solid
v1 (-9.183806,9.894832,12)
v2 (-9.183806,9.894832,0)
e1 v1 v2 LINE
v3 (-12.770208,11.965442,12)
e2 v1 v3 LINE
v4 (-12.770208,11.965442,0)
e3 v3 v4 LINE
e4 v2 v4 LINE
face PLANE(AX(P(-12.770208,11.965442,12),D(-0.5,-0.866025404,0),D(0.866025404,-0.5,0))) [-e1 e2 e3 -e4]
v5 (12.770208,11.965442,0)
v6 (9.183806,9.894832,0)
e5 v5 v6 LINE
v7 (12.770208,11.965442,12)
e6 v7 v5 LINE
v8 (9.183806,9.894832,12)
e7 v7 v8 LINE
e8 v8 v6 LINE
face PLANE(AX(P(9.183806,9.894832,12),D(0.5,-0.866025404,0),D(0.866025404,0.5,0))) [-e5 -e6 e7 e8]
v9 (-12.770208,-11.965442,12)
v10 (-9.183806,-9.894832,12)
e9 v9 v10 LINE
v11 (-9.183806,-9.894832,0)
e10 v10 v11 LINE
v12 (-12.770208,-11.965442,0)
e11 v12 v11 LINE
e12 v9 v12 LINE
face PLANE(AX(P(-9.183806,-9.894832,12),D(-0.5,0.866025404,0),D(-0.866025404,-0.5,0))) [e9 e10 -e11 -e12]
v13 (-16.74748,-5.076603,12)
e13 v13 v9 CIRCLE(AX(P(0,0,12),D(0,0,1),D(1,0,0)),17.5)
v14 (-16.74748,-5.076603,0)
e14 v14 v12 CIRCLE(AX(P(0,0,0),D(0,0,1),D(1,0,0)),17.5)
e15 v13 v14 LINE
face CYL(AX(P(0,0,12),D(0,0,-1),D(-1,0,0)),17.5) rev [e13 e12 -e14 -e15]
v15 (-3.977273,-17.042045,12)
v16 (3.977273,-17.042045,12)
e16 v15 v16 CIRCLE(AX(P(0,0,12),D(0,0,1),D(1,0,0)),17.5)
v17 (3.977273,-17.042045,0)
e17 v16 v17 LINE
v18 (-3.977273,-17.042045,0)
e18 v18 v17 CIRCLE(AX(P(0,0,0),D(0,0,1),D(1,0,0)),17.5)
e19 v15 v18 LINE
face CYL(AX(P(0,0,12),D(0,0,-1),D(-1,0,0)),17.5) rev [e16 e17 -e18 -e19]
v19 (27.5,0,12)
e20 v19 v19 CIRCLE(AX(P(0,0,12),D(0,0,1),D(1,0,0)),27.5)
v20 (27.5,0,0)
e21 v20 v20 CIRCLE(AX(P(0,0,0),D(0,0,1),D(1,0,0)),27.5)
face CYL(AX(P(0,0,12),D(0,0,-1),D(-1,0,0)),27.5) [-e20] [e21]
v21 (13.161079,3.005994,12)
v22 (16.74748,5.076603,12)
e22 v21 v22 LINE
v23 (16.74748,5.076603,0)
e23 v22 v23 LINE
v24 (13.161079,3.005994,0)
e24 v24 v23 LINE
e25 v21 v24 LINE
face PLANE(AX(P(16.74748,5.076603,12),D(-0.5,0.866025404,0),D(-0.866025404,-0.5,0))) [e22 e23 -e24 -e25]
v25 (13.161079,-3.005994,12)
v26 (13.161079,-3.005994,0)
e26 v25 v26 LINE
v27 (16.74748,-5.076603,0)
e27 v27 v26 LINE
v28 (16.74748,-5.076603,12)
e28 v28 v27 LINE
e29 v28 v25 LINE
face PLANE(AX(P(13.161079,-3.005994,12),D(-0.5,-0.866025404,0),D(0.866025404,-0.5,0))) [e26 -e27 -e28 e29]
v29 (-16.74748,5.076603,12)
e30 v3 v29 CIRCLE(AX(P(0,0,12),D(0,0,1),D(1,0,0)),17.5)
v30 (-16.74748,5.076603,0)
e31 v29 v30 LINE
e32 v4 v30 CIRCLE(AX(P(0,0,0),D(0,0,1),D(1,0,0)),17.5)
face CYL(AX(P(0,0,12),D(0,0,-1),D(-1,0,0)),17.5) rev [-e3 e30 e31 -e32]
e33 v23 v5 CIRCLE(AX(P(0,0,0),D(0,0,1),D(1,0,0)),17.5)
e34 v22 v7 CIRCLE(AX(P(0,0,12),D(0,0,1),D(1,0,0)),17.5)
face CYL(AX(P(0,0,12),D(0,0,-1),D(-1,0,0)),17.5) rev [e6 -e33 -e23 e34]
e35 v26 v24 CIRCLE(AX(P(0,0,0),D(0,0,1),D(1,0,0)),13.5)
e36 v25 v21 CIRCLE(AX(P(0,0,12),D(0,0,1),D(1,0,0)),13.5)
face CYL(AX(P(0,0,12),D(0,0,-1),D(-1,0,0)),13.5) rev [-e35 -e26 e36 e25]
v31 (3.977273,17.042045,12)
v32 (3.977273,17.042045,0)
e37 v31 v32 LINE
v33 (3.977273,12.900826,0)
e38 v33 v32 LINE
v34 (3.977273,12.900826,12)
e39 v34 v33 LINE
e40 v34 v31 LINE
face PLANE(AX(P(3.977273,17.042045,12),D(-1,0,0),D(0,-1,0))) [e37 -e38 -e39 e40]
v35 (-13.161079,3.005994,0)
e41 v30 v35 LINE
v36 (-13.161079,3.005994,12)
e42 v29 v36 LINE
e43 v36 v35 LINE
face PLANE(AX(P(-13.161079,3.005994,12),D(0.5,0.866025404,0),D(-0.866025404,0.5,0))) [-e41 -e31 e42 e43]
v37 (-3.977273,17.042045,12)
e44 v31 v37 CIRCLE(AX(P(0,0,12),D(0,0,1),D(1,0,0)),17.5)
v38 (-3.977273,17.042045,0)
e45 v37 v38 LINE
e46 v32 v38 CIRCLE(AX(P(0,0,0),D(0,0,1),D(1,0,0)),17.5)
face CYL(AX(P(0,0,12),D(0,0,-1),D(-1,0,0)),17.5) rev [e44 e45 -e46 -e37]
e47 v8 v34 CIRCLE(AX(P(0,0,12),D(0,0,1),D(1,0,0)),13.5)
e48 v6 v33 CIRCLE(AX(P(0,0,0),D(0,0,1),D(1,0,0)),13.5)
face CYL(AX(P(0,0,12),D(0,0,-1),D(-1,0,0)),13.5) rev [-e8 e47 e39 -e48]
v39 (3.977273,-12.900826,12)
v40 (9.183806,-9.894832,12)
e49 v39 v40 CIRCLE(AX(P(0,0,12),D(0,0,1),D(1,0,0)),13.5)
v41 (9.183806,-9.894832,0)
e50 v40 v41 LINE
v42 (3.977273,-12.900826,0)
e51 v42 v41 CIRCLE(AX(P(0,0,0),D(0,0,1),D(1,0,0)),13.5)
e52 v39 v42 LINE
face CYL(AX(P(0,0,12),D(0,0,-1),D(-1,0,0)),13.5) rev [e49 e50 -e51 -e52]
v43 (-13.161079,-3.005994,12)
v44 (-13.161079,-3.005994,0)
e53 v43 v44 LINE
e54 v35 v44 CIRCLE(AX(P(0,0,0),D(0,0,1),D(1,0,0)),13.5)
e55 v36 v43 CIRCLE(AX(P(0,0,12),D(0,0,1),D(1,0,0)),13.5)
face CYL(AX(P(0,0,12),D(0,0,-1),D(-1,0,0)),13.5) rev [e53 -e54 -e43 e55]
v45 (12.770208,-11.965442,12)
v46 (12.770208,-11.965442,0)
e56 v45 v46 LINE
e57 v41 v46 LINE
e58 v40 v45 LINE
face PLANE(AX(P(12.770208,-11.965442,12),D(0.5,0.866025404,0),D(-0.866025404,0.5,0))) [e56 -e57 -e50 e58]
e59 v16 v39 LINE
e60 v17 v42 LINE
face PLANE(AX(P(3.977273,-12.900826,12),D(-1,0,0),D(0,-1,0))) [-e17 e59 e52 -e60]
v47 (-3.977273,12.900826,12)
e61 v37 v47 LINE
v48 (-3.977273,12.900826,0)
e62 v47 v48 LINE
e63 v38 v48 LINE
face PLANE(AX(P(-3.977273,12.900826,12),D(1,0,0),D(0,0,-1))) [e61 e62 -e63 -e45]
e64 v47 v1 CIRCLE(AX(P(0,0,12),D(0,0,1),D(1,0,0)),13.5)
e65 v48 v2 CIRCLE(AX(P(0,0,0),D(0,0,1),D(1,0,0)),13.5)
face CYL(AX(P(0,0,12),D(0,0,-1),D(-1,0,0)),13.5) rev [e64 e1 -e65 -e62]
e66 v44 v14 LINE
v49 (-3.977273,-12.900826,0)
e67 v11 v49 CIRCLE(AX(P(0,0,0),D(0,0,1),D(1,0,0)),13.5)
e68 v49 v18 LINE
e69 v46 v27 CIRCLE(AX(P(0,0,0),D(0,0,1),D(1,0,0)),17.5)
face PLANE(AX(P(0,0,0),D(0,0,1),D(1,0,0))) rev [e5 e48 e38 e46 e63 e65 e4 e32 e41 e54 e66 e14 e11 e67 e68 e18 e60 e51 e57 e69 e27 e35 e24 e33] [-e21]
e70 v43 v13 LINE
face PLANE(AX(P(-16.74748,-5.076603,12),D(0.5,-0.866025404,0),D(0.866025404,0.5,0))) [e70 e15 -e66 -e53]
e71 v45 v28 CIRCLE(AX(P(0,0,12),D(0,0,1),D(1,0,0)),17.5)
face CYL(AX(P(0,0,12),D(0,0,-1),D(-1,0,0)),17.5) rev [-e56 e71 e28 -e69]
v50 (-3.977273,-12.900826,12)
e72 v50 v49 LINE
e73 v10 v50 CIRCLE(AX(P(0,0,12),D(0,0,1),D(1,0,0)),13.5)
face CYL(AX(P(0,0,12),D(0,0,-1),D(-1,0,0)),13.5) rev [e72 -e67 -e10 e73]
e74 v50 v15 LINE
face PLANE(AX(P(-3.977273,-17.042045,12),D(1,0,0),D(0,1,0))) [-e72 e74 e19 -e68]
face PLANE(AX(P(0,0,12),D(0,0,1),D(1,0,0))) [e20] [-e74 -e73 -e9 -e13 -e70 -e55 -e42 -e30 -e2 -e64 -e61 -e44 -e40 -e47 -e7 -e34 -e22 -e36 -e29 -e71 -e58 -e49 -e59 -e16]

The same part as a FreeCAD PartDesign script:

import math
import FreeCAD as App
import Part
import Sketcher
Q = App.Units.Quantity

doc = App.newDocument("Part")
body = doc.addObject("PartDesign::Body", "Body")

# Sketch on XY plane
sketch1 = doc.addObject("Sketcher::SketchObject", "Sketch")
body.addObject(sketch1)
sketch1.AttachmentSupport = (doc.XY_Plane, [""])
sketch1.MapMode = "FlatFace"
sketch1.addGeometry([
    Part.Circle(App.Vector(0, 0, 0), App.Vector(0, 0, 1), 27.5),  # 0
    Part.ArcOfCircle(Part.Circle(App.Vector(0, 0, 0), App.Vector(0, 0, 1), 13.5), math.radians(107), math.radians(133)),  # 1
    Part.LineSegment(App.Vector(-4, 12.9, 0), App.Vector(-4, 17, 0)),  # 2
    Part.ArcOfCircle(Part.Circle(App.Vector(0, 0, 0), App.Vector(0, 0, 1), 17.5), math.radians(77), math.radians(103)),  # 3
    Part.LineSegment(App.Vector(4, 17, 0), App.Vector(4, 12.9, 0)),  # 4
    Part.ArcOfCircle(Part.Circle(App.Vector(0, 0, 0), App.Vector(0, 0, 1), 13.5), math.radians(47), math.radians(73)),  # 5
    Part.LineSegment(App.Vector(9.2, 9.9, 0), App.Vector(12.8, 12, 0)),  # 6
    Part.ArcOfCircle(Part.Circle(App.Vector(0, 0, 0), App.Vector(0, 0, 1), 17.5), math.radians(17), math.radians(43)),  # 7
    Part.LineSegment(App.Vector(16.7, 5.1, 0), App.Vector(13.2, 3, 0)),  # 8
    Part.ArcOfCircle(Part.Circle(App.Vector(0, 0, 0), App.Vector(0, 0, 1), 13.5), math.radians(-13), math.radians(13)),  # 9
    Part.LineSegment(App.Vector(13.2, -3, 0), App.Vector(16.7, -5.1, 0)),  # 10
    Part.ArcOfCircle(Part.Circle(App.Vector(0, 0, 0), App.Vector(0, 0, 1), 17.5), math.radians(-43), math.radians(-17)),  # 11
    Part.LineSegment(App.Vector(12.8, -12, 0), App.Vector(9.2, -9.9, 0)),  # 12
    Part.ArcOfCircle(Part.Circle(App.Vector(0, 0, 0), App.Vector(0, 0, 1), 13.5), math.radians(-73), math.radians(-47)),  # 13
    Part.LineSegment(App.Vector(4, -12.9, 0), App.Vector(4, -17, 0)),  # 14
    Part.ArcOfCircle(Part.Circle(App.Vector(0, 0, 0), App.Vector(0, 0, 1), 17.5), math.radians(-103), math.radians(-77)),  # 15
    Part.LineSegment(App.Vector(-4, -17, 0), App.Vector(-4, -12.9, 0)),  # 16
    Part.ArcOfCircle(Part.Circle(App.Vector(0, 0, 0), App.Vector(0, 0, 1), 13.5), math.radians(-133), math.radians(-107)),  # 17
    Part.LineSegment(App.Vector(-9.2, -9.9, 0), App.Vector(-12.8, -12, 0)),  # 18
    Part.ArcOfCircle(Part.Circle(App.Vector(0, 0, 0), App.Vector(0, 0, 1), 17.5), math.radians(-163), math.radians(-137)),  # 19
    Part.LineSegment(App.Vector(-16.7, -5.1, 0), App.Vector(-13.2, -3, 0)),  # 20
    Part.ArcOfCircle(Part.Circle(App.Vector(0, 0, 0), App.Vector(0, 0, 1), 13.5), math.radians(167), math.radians(193)),  # 21
    Part.LineSegment(App.Vector(-13.2, 3, 0), App.Vector(-16.7, 5.1, 0)),  # 22
    Part.ArcOfCircle(Part.Circle(App.Vector(0, 0, 0), App.Vector(0, 0, 1), 17.5), math.radians(137), math.radians(163)),  # 23
    Part.LineSegment(App.Vector(-12.8, 12, 0), App.Vector(-9.2, 9.9, 0)),  # 24
], False)
sketch1.addConstraint([
    Sketcher.Constraint("Coincident", 1, 1, 2, 1),
    Sketcher.Constraint("Coincident", 2, 2, 3, 2),
    Sketcher.Constraint("Coincident", 3, 1, 4, 1),
    Sketcher.Constraint("Coincident", 4, 2, 5, 2),
    Sketcher.Constraint("Coincident", 5, 1, 6, 1),
    Sketcher.Constraint("Coincident", 6, 2, 7, 2),
    Sketcher.Constraint("Coincident", 7, 1, 8, 1),
    Sketcher.Constraint("Coincident", 8, 2, 9, 2),
    Sketcher.Constraint("Coincident", 9, 1, 10, 1),
    Sketcher.Constraint("Coincident", 10, 2, 11, 2),
    Sketcher.Constraint("Coincident", 11, 1, 12, 1),
    Sketcher.Constraint("Coincident", 12, 2, 13, 2),
    Sketcher.Constraint("Coincident", 13, 1, 14, 1),
    Sketcher.Constraint("Coincident", 14, 2, 15, 2),
    Sketcher.Constraint("Coincident", 15, 1, 16, 1),
    Sketcher.Constraint("Coincident", 16, 2, 17, 2),
    Sketcher.Constraint("Coincident", 17, 1, 18, 1),
    Sketcher.Constraint("Coincident", 18, 2, 19, 2),
    Sketcher.Constraint("Coincident", 19, 1, 20, 1),
    Sketcher.Constraint("Coincident", 20, 2, 21, 2),
    Sketcher.Constraint("Coincident", 21, 1, 22, 1),
    Sketcher.Constraint("Coincident", 22, 2, 23, 2),
    Sketcher.Constraint("Coincident", 23, 1, 24, 1),
    Sketcher.Constraint("Coincident", 24, 2, 1, 2),
    Sketcher.Constraint("Vertical", 2),
    Sketcher.Constraint("Vertical", 4),
    Sketcher.Constraint("Vertical", 14),
    Sketcher.Constraint("Vertical", 16),
    Sketcher.Constraint("Coincident", 0, 3, -1, 1),
    Sketcher.Constraint("Coincident", 1, 3, -1, 1),
    Sketcher.Constraint("Coincident", 3, 3, -1, 1),
    Sketcher.Constraint("Coincident", 5, 3, -1, 1),
    Sketcher.Constraint("Coincident", 7, 3, -1, 1),
    Sketcher.Constraint("Coincident", 9, 3, -1, 1),
    Sketcher.Constraint("Coincident", 11, 3, -1, 1),
    Sketcher.Constraint("Coincident", 13, 3, -1, 1),
    Sketcher.Constraint("Coincident", 15, 3, -1, 1),
    Sketcher.Constraint("Coincident", 17, 3, -1, 1),
    Sketcher.Constraint("Coincident", 19, 3, -1, 1),
    Sketcher.Constraint("Coincident", 21, 3, -1, 1),
    Sketcher.Constraint("Coincident", 23, 3, -1, 1),
    Sketcher.Constraint("Equal", 1, 5),
    Sketcher.Constraint("Equal", 3, 7),
    Sketcher.Constraint("Equal", 5, 9),
    Sketcher.Constraint("Equal", 7, 11),
    Sketcher.Constraint("Equal", 9, 13),
    Sketcher.Constraint("Equal", 11, 15),
    Sketcher.Constraint("Equal", 13, 17),
    Sketcher.Constraint("Equal", 15, 19),
    Sketcher.Constraint("Equal", 17, 21),
    Sketcher.Constraint("Equal", 19, 23),
    Sketcher.Constraint("Parallel", 6, 8),
    Sketcher.Constraint("Parallel", 10, 12),
    Sketcher.Constraint("Parallel", 8, 18),
    Sketcher.Constraint("Parallel", 18, 20),
    Sketcher.Constraint("Parallel", 12, 22),
    Sketcher.Constraint("Parallel", 22, 24),
    Sketcher.Constraint("Horizontal", 2, 2, 3, 1),
    Sketcher.Constraint("Horizontal", 14, 2, 15, 1),
    Sketcher.Constraint("Horizontal", 12, 2, 17, 1),
    Sketcher.Constraint("Horizontal", 11, 1, 18, 2),
    Sketcher.Constraint("Horizontal", 10, 2, 19, 1),
    Sketcher.Constraint("Horizontal", 8, 2, 21, 1),
    Sketcher.Constraint("Horizontal", 6, 2, 23, 1),
    Sketcher.Constraint("Vertical", 8, 2, 9, 1),
    Sketcher.Constraint("Vertical", 6, 2, 11, 1),
    Sketcher.Constraint("Vertical", 4, 2, 13, 1),
    Sketcher.Constraint("Equal", 6, 8),
    Sketcher.Constraint("Diameter", 0, 55.0),
    Sketcher.Constraint("Radius", 1, 13.5),
    Sketcher.Constraint("Radius", 3, 17.5),
    Sketcher.Constraint("Angle", 6, Q("30 deg")),
    Sketcher.Constraint("DistanceY", 2, 1, 2, 2, 4.141219),
    Sketcher.Constraint("DistanceX", 8, 2, 7, 1, 3.586401),
])
pad1 = doc.addObject("PartDesign::Pad", "Pad")
body.addObject(pad1)
pad1.Profile = sketch1
pad1.Length = 12

doc.recompute()
